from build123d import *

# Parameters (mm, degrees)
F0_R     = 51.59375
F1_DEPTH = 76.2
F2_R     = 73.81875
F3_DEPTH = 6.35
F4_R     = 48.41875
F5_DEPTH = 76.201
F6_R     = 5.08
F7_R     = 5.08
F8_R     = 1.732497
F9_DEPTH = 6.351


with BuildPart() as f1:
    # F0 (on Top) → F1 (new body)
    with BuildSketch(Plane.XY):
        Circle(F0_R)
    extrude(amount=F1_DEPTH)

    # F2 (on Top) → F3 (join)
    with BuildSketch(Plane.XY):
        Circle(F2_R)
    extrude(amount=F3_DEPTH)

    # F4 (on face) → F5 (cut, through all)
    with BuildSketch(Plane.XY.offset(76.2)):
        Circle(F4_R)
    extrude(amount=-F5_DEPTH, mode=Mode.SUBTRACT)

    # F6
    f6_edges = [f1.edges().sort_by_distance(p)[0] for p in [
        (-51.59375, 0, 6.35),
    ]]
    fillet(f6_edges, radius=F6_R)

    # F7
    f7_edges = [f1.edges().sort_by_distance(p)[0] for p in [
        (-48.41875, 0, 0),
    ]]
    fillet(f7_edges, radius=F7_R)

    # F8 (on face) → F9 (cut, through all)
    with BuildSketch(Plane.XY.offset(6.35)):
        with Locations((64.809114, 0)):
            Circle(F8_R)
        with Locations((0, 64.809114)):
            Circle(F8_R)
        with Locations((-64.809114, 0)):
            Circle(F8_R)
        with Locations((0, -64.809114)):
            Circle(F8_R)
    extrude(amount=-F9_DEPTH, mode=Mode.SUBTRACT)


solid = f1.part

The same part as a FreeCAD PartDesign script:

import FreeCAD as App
import Part
import Sketcher
from FreeCAD import Vector
Q = App.Units.Quantity


def edges_at(feature, points):
    """Names of the edges that pass closest to the given points."""
    edges = feature.Shape.Edges
    near = lambda p: min(range(len(edges)), key=lambda i: edges[i].distToShape(Part.Vertex(*p))[0])
    return sorted({f"Edge{near(p) + 1}" for p in points})

doc = App.newDocument("Part")
body = doc.addObject("PartDesign::Body", "Body")

sketch1 = body.newObject("Sketcher::SketchObject", "Sketch")
sketch1.AttachmentSupport = (doc.getObject("XY_Plane"), [""])
sketch1.MapMode = "FlatFace"
sketch1.addGeometry(Part.Circle(Vector(0, 0, 0), Vector(0, 0, 1), 52), False)
sketch1.addConstraint(Sketcher.Constraint("Coincident", 0, 3, -1, 1))
sketch1.addConstraint(Sketcher.Constraint("Diameter", 0, Q("4.0625 in")))
pad1 = body.newObject("PartDesign::Pad", "Pad")
pad1.Profile = sketch1
pad1.Length = Q("3 in")

sketch2 = body.newObject("Sketcher::SketchObject", "Sketch001")
sketch2.AttachmentSupport = (doc.getObject("XY_Plane"), [""])
sketch2.MapMode = "FlatFace"
sketch2.addGeometry(Part.Circle(Vector(0, 0, 0), Vector(0, 0, 1), 74), False)
sketch2.addConstraint(Sketcher.Constraint("Coincident", 0, 3, -1, 1))
sketch2.addConstraint(Sketcher.Constraint("Diameter", 0, Q("5.8125 in")))
pad2 = body.newObject("PartDesign::Pad", "Pad001")
pad2.Profile = sketch2
pad2.Length = Q("0.25 in")

sketch3 = body.newObject("Sketcher::SketchObject", "Sketch002")
sketch3.AttachmentSupport = (doc.getObject("XY_Plane"), [""])
sketch3.MapMode = "FlatFace"
sketch3.AttachmentOffset = App.Placement(Vector(0, 0, 3 * 25.4), App.Rotation())
sketch3.addGeometry(Part.Circle(Vector(0, 0, 0), Vector(0, 0, 1), 48), False)
sketch3.addConstraint(Sketcher.Constraint("Coincident", 0, 3, -1, 1))
sketch3.addConstraint(Sketcher.Constraint("Diameter", 0, Q("3.8125 in")))
pocket1 = body.newObject("PartDesign::Pocket", "Pocket")
pocket1.Profile = sketch3
pocket1.Type = "ThroughAll"
doc.recompute()

fillet = body.newObject("PartDesign::Fillet", "Fillet")
fillet.Base = (pocket1, edges_at(pocket1, [(-51.594, 0, 6.35)]))
fillet.Radius = Q("0.2 in")
doc.recompute()

fillet2 = body.newObject("PartDesign::Fillet", "Fillet001")
fillet2.Base = (fillet, edges_at(fillet, [(-48.419, 0, 0)]))
fillet2.Radius = Q("0.2 in")

sketch4 = body.newObject("Sketcher::SketchObject", "Sketch003")
sketch4.AttachmentSupport = (doc.getObject("XY_Plane"), [""])
sketch4.MapMode = "FlatFace"
sketch4.AttachmentOffset = App.Placement(Vector(0, 0, 0.25 * 25.4), App.Rotation())
sketch4.addGeometry(Part.Circle(Vector(64.8, 0, 0), Vector(0, 0, 1), 1.7), False)
sketch4.addGeometry(Part.Circle(Vector(0, 64.8, 0), Vector(0, 0, 1), 1.7), False)
sketch4.addGeometry(Part.Circle(Vector(-64.8, 0, 0), Vector(0, 0, 1), 1.7), False)
sketch4.addGeometry(Part.Circle(Vector(0, -64.8, 0), Vector(0, 0, 1), 1.7), False)
sketch4.addConstraint(Sketcher.Constraint("Equal", 0, 1))
sketch4.addConstraint(Sketcher.Constraint("Equal", 1, 2))
sketch4.addConstraint(Sketcher.Constraint("Equal", 2, 3))
sketch4.addConstraint(Sketcher.Constraint("Symmetric", 0, 3, 2, 3, -1, 1))
sketch4.addConstraint(Sketcher.Constraint("Symmetric", 1, 3, 3, 3, -1, 1))
sketch4.addConstraint(Sketcher.Constraint("PointOnObject", 0, 3, -1))
sketch4.addConstraint(Sketcher.Constraint("PointOnObject", 1, 3, -2))
sketch4.addConstraint(Sketcher.Constraint("Diameter", 0, 3.464994))
sketch4.addConstraint(Sketcher.Constraint("DistanceX", -1, 1, 0, 3, 64.809114))
sketch4.addConstraint(Sketcher.Constraint("DistanceY", -1, 1, 1, 3, 64.809114))
pocket2 = body.newObject("PartDesign::Pocket", "Pocket001")
pocket2.Profile = sketch4
pocket2.Type = "ThroughAll"

doc.recompute()
